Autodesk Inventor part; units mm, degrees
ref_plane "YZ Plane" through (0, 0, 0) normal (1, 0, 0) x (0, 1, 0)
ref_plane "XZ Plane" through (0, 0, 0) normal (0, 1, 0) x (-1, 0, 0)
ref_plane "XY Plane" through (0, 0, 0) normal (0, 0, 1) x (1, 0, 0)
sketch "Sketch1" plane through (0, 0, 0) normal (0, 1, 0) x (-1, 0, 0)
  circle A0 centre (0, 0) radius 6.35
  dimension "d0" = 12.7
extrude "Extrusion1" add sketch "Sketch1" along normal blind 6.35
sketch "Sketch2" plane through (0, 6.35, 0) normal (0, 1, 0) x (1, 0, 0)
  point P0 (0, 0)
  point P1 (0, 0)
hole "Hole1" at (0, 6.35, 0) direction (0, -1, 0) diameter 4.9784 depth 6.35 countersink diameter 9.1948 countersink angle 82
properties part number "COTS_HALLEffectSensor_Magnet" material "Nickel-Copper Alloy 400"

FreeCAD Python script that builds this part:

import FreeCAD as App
import Part
import Sketcher
from FreeCAD import Vector
Q = App.Units.Quantity

doc = App.newDocument("Part")
body = doc.addObject("PartDesign::Body", "Body")

# Sketch on XZ plane
sketch1 = body.newObject("Sketcher::SketchObject", "Sketch")
sketch1.AttachmentSupport = (doc.getObject("XZ_Plane"), [""])
sketch1.MapMode = "FlatFace"
sketch1.addGeometry(Part.Circle(Vector(0, 0, 0), Vector(0, 0, 1), 6), False)
sketch1.addConstraint(Sketcher.Constraint("Coincident", 0, 3, -1, 1))
sketch1.addConstraint(Sketcher.Constraint("Diameter", 0, Q("0.5 in")))
pad1 = body.newObject("PartDesign::Pad", "Pad")
pad1.Profile = sketch1
pad1.Length = Q("0.25 in")
pad1.Reversed = True

# Sketch on XZ plane
sketch2 = body.newObject("Sketcher::SketchObject", "Sketch001")
sketch2.AttachmentSupport = (doc.getObject("XZ_Plane"), [""])
sketch2.MapMode = "FlatFace"
sketch2.AttachmentOffset = App.Placement(Vector(0, 0, -0.25 * 25.4), App.Rotation())
sketch2.addGeometry(Part.Circle(Vector(0, 0, 0), Vector(0, 0, 1), 2.5), False)
sketch2.addConstraint(Sketcher.Constraint("Coincident", 0, 3, -1, 1))
sketch2.addConstraint(Sketcher.Constraint("Diameter", 0, Q("0.196 in")))
doc.recompute()
hole = body.newObject("PartDesign::Hole", "Hole")
hole.Profile = sketch2
hole.ThreadType = "None"
hole.Diameter = Q("0.196 in")
hole.DepthType = "Dimension"
hole.Depth = Q("0.25 in")
hole.DrillPoint = "Flat"
hole.HoleCutType = "Countersink"
hole.HoleCutDiameter = Q("0.362 in")
hole.HoleCutCountersinkAngle = 82
hole.Reversed = True

doc.recompute()
